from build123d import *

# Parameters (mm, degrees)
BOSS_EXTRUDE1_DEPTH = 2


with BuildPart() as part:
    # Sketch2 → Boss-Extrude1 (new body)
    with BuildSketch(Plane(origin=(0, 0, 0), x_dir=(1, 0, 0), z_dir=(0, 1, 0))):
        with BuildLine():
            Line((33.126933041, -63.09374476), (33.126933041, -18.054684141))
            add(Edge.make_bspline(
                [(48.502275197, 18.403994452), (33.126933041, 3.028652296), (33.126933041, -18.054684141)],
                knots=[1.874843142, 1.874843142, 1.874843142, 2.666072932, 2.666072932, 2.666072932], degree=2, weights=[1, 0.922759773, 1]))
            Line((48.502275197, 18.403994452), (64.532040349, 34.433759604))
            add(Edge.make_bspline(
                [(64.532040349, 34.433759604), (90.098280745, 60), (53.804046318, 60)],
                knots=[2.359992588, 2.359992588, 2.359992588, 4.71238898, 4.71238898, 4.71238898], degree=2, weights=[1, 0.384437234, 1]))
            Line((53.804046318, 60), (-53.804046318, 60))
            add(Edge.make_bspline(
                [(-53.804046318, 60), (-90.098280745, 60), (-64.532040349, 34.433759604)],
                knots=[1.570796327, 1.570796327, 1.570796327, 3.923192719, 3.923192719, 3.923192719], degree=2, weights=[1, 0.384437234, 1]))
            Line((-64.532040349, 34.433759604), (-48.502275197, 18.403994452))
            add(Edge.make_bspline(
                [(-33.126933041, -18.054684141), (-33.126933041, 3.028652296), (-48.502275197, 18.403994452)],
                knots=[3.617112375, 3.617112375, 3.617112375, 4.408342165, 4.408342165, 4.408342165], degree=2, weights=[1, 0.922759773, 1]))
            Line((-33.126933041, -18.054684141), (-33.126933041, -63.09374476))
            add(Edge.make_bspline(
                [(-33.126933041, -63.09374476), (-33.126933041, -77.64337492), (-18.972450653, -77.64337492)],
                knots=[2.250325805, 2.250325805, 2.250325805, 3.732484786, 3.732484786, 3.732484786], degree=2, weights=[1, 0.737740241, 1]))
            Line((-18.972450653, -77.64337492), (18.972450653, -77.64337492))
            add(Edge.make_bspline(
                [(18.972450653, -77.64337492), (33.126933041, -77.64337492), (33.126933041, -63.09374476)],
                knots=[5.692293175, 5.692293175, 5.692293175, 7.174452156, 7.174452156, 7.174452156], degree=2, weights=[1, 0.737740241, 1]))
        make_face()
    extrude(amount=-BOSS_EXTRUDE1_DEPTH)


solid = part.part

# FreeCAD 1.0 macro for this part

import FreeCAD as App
import Part
import Sketcher
from FreeCAD import Vector

doc = App.newDocument("Part")
body = doc.addObject("PartDesign::Body", "Body")

sketch1 = body.newObject("Sketcher::SketchObject", "Sketch")
sketch1.AttachmentSupport = (doc.getObject("XZ_Plane"), [""])
sketch1.MapMode = "FlatFace"
sketch1.addGeometry(Part.LineSegment(Vector(33.126933, 63.093745, 0), Vector(33.126933, 18.054684, 0)), False)
sketch1.addGeometry(Part.BSplineCurve([Vector(48.502275, -18.403994, 0), Vector(33.126933, -3.028652, 0), Vector(33.126933, 18.054684, 0)], [3, 3], [1.874843142, 2.666072932], False, 2, [1, 0.922759773, 1], False), False)
sketch1.addGeometry(Part.LineSegment(Vector(48.502275, -18.403994, 0), Vector(64.53204, -34.43376, 0)), False)
sketch1.addGeometry(Part.BSplineCurve([Vector(64.53204, -34.43376, 0), Vector(90.098281, -60, 0), Vector(53.804046, -60, 0)], [3, 3], [2.359992588, 4.71238898], False, 2, [1, 0.384437234, 1], False), False)
sketch1.addGeometry(Part.LineSegment(Vector(53.804046, -60, 0), Vector(-53.804046, -60, 0)), False)
sketch1.addGeometry(Part.BSplineCurve([Vector(-53.804046, -60, 0), Vector(-90.098281, -60, 0), Vector(-64.53204, -34.43376, 0)], [3, 3], [1.570796327, 3.923192719], False, 2, [1, 0.384437234, 1], False), False)
sketch1.addGeometry(Part.LineSegment(Vector(-64.53204, -34.43376, 0), Vector(-48.502275, -18.403994, 0)), False)
sketch1.addGeometry(Part.BSplineCurve([Vector(-33.126933, 18.054684, 0), Vector(-33.126933, -3.028652, 0), Vector(-48.502275, -18.403994, 0)], [3, 3], [3.617112375, 4.408342165], False, 2, [1, 0.922759773, 1], False), False)
sketch1.addGeometry(Part.LineSegment(Vector(-33.126933, 18.054684, 0), Vector(-33.126933, 63.093745, 0)), False)
sketch1.addGeometry(Part.BSplineCurve([Vector(-33.126933, 63.093745, 0), Vector(-33.126933, 77.643375, 0), Vector(-18.972451, 77.643375, 0)], [3, 3], [2.250325805, 3.732484786], False, 2, [1, 0.737740241, 1], False), False)
sketch1.addGeometry(Part.LineSegment(Vector(-18.972451, 77.643375, 0), Vector(18.972451, 77.643375, 0)), False)
sketch1.addGeometry(Part.BSplineCurve([Vector(18.972451, 77.643375, 0), Vector(33.126933, 77.643375, 0), Vector(33.126933, 63.093745, 0)], [3, 3], [5.692293175, 7.174452156], False, 2, [1, 0.737740241, 1], False), False)
sketch1.addConstraint(Sketcher.Constraint("Block", 1))
sketch1.addConstraint(Sketcher.Constraint("Block", 3))
sketch1.addConstraint(Sketcher.Constraint("Block", 5))
sketch1.addConstraint(Sketcher.Constraint("Block", 7))
sketch1.addConstraint(Sketcher.Constraint("Block", 9))
sketch1.addConstraint(Sketcher.Constraint("Block", 11))
sketch1.addConstraint(Sketcher.Constraint("Coincident", 0, 2, 1, 2))
sketch1.addConstraint(Sketcher.Constraint("Coincident", 1, 1, 2, 1))
sketch1.addConstraint(Sketcher.Constraint("Coincident", 2, 2, 3, 1))
sketch1.addConstraint(Sketcher.Constraint("Coincident", 3, 2, 4, 1))
sketch1.addConstraint(Sketcher.Constraint("Coincident", 4, 2, 5, 1))
sketch1.addConstraint(Sketcher.Constraint("Coincident", 5, 2, 6, 1))
sketch1.addConstraint(Sketcher.Constraint("Coincident", 6, 2, 7, 2))
sketch1.addConstraint(Sketcher.Constraint("Coincident", 7, 1, 8, 1))
sketch1.addConstraint(Sketcher.Constraint("Coincident", 8, 2, 9, 1))
sketch1.addConstraint(Sketcher.Constraint("Coincident", 9, 2, 10, 1))
sketch1.addConstraint(Sketcher.Constraint("Coincident", 10, 2, 11, 1))
sketch1.addConstraint(Sketcher.Constraint("Coincident", 11, 2, 0, 1))
pad1 = body.newObject("PartDesign::Pad", "Pad")
pad1.Profile = sketch1
pad1.Length = 2

doc.recompute()
